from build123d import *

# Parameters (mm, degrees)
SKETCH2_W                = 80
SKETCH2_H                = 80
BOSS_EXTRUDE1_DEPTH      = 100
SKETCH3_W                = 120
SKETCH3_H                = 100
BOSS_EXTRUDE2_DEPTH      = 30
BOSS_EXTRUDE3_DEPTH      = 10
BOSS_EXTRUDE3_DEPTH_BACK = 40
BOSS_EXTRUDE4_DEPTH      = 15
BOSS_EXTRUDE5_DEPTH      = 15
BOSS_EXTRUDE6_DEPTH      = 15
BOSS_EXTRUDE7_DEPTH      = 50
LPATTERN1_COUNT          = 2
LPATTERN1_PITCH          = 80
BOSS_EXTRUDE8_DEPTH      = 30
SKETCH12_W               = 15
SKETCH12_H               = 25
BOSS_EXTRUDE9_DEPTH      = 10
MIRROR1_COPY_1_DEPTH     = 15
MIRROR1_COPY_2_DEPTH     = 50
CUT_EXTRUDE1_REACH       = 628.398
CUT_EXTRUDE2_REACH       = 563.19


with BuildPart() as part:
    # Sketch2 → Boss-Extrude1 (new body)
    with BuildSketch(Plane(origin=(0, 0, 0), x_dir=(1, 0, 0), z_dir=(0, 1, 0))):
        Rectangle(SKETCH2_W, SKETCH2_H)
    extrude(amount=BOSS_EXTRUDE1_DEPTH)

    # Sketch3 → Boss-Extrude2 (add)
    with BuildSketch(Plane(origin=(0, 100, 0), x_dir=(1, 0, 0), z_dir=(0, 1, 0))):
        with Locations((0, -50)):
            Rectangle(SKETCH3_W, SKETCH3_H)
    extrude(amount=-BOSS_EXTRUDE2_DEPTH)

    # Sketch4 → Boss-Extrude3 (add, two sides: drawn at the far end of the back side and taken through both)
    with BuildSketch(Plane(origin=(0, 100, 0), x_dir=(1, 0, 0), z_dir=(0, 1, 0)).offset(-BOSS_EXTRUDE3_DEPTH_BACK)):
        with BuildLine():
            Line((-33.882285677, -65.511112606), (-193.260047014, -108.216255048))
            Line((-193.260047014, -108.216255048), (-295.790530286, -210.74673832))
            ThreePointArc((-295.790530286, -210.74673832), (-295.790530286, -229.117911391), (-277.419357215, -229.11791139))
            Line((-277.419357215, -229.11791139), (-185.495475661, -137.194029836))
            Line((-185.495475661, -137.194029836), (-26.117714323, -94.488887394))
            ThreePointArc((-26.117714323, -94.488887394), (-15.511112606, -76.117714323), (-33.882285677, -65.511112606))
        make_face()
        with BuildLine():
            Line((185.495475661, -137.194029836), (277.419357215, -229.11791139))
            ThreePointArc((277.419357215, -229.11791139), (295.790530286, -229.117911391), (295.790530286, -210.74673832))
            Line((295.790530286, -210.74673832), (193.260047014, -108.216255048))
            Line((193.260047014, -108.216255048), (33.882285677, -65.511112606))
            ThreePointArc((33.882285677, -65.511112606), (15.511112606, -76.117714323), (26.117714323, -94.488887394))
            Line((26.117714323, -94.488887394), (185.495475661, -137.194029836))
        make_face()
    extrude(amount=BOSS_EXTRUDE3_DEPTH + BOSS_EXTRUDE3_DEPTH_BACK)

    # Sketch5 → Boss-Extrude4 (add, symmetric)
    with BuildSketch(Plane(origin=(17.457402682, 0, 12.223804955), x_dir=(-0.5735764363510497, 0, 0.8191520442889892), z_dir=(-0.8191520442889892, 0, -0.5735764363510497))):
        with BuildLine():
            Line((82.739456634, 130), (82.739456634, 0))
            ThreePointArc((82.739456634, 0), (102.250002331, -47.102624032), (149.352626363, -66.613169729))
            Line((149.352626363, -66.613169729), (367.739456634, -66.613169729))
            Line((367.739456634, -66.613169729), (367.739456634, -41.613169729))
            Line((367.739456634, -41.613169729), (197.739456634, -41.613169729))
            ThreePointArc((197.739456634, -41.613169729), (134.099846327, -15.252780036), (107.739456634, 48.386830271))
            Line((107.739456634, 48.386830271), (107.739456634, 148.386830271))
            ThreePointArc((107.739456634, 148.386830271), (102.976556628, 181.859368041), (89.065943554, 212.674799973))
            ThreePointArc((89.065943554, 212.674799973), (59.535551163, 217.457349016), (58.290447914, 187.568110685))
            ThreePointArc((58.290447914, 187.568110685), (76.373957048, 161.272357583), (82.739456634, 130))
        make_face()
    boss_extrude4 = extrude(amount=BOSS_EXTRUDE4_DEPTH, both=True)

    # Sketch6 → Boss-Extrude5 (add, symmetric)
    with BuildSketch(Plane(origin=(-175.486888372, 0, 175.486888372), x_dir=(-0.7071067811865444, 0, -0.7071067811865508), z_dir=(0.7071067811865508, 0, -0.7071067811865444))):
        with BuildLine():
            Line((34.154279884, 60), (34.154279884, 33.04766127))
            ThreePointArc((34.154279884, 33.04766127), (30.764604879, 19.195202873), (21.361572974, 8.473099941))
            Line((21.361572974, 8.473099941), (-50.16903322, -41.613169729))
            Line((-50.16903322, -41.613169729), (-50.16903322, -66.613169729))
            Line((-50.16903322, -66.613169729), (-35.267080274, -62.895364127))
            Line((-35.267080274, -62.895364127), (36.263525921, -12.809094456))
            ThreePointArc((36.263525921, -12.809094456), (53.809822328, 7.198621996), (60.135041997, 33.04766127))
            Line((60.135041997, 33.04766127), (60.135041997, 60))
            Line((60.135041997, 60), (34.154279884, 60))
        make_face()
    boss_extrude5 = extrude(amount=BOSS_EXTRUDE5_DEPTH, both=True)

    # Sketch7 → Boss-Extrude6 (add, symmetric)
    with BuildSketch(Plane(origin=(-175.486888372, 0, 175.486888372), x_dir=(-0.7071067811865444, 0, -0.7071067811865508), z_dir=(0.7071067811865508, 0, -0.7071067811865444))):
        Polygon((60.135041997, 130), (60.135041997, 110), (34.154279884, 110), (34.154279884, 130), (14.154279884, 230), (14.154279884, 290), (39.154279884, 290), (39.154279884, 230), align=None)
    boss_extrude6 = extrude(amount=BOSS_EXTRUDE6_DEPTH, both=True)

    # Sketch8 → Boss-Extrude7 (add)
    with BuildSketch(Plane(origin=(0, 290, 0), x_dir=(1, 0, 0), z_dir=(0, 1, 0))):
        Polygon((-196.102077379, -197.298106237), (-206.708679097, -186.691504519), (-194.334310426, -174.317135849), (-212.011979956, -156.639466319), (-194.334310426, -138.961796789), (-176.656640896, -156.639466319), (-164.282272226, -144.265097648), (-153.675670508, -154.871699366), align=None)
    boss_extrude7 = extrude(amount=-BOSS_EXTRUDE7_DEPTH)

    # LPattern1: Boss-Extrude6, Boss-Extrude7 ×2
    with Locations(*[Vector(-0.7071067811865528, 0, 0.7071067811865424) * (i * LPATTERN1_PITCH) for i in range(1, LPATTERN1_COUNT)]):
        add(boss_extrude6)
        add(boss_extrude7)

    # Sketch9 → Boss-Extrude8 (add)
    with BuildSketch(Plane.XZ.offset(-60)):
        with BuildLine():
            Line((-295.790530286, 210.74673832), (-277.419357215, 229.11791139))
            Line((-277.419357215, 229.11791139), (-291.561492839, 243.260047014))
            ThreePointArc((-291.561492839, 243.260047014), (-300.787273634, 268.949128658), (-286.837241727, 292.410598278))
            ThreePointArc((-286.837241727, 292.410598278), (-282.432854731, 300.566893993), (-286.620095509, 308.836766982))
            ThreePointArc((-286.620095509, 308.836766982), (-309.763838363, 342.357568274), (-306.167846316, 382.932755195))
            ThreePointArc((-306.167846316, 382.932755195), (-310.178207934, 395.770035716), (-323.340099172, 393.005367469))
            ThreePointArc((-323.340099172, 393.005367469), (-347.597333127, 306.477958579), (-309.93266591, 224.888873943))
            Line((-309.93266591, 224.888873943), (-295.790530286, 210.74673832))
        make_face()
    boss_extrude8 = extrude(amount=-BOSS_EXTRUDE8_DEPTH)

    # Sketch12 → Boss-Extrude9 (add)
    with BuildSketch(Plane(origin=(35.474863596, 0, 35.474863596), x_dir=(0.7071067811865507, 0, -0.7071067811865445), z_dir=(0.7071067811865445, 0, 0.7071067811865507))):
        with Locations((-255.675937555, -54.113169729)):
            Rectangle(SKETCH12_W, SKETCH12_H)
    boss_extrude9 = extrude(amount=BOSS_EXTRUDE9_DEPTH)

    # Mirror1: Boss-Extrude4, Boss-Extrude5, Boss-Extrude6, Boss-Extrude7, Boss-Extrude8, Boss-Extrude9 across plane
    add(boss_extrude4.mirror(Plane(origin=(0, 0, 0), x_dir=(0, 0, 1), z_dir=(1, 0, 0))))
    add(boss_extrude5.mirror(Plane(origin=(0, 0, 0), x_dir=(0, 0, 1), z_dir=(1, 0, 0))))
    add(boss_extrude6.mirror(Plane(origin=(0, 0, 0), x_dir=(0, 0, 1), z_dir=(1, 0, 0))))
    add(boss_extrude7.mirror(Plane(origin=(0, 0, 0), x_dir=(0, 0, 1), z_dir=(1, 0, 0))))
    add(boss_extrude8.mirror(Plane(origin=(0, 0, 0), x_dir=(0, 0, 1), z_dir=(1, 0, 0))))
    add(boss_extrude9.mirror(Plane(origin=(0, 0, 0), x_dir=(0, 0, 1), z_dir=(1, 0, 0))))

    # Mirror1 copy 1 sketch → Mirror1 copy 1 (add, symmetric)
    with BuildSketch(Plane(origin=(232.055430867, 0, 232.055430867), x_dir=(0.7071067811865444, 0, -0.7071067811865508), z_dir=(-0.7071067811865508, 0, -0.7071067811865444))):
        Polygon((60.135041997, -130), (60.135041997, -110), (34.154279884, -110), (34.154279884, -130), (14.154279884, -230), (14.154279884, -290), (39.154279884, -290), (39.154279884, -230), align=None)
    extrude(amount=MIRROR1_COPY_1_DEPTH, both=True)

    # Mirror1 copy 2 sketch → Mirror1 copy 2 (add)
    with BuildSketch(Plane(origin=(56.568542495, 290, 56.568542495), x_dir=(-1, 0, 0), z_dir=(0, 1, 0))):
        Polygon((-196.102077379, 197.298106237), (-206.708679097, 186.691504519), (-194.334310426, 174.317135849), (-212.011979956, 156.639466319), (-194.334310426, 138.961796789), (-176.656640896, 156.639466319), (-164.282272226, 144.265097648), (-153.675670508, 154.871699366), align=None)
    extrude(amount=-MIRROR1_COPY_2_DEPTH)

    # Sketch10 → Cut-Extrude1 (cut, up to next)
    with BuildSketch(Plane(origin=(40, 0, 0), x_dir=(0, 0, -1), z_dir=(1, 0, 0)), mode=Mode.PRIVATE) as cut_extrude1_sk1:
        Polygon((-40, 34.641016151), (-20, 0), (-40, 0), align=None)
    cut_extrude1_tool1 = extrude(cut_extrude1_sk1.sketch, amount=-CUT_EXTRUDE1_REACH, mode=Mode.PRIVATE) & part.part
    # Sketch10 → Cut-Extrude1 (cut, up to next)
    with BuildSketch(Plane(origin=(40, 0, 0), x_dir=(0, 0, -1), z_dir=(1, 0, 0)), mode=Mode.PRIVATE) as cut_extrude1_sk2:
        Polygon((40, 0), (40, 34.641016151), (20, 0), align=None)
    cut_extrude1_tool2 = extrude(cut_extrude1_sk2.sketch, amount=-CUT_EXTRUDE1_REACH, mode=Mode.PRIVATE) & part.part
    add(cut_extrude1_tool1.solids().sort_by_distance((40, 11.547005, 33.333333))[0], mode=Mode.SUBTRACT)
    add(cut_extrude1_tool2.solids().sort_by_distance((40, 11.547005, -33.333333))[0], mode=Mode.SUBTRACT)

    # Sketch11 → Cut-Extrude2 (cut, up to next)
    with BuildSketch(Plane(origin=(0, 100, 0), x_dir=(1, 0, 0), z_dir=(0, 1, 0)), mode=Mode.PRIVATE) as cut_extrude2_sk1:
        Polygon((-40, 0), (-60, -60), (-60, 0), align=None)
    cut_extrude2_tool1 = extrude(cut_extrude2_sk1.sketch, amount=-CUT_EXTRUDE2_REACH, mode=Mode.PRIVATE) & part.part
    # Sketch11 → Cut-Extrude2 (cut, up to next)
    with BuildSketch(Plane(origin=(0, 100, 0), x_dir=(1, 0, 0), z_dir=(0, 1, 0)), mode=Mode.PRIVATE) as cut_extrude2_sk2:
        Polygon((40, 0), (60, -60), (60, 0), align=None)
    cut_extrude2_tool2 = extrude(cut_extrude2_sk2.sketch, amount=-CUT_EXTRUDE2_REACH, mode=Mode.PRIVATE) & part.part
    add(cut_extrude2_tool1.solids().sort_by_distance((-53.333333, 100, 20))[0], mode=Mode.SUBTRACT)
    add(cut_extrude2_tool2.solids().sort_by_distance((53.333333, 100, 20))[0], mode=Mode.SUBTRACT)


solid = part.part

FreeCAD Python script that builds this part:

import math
import FreeCAD as App
import Part
import Sketcher
Q = App.Units.Quantity


def add_polygon(sketch, points):
    """Adds a closed chain of lines whose ends are joined by coincident constraints."""
    first, n = sketch.GeometryCount, len(points)
    for a, b in zip(points, points[1:] + points[:1]):
        sketch.addGeometry(Part.LineSegment(App.Vector(*a, 0), App.Vector(*b, 0)), False)
    for i in range(n):
        sketch.addConstraint(Sketcher.Constraint("Coincident", first + i, 2, first + (i + 1) % n, 1))

doc = App.newDocument("Part")
body = doc.addObject("PartDesign::Body", "Body")

# Sketch on XZ plane
sketch1 = doc.addObject("Sketcher::SketchObject", "Sketch")
body.addObject(sketch1)
sketch1.AttachmentSupport = (doc.XZ_Plane, [""])
sketch1.MapMode = "FlatFace"
add_polygon(sketch1, [(-40, -40), (-40, 40), (40, 40), (40, -40)])  # lines 0-3
sketch1.addConstraint([
    Sketcher.Constraint("Vertical", 0),
    Sketcher.Constraint("Horizontal", 1),
    Sketcher.Constraint("Vertical", 2),
    Sketcher.Constraint("Horizontal", 3),
    Sketcher.Constraint("Symmetric", 0, 2, 2, 2, -1, 1),
    Sketcher.Constraint("Equal", 3, 0),
    Sketcher.Constraint("DistanceX", 1, 1, 1, 2, 80.0),
])
pad1 = doc.addObject("PartDesign::Pad", "Pad")
body.addObject(pad1)
pad1.Profile = sketch1
pad1.Length = 100
pad1.Reversed = True

# Sketch on XZ plane
sketch2 = doc.addObject("Sketcher::SketchObject", "Sketch001")
body.addObject(sketch2)
sketch2.AttachmentSupport = (doc.XZ_Plane, [""])
sketch2.MapMode = "FlatFace"
sketch2.AttachmentOffset = App.Placement(App.Vector(0, 0, -100), App.Rotation())
add_polygon(sketch2, [(-60, 0), (-60, 100), (60, 100), (60, 0)])  # lines 0-3
sketch2.addConstraint([
    Sketcher.Constraint("Vertical", 0),
    Sketcher.Constraint("Horizontal", 1),
    Sketcher.Constraint("Vertical", 2),
    Sketcher.Constraint("Horizontal", 3),
    Sketcher.Constraint("Symmetric", 2, 2, 3, 2, -1, 1),
    Sketcher.Constraint("DistanceX", 1, 1, 1, 2, 120.0),
    Sketcher.Constraint("DistanceY", 0, 1, 0, 2, 100.0),
])
pad2 = doc.addObject("PartDesign::Pad", "Pad001")
body.addObject(pad2)
pad2.Profile = sketch2
pad2.Length = 30

# Sketch on XZ plane
sketch3 = doc.addObject("Sketcher::SketchObject", "Sketch002")
body.addObject(sketch3)
sketch3.AttachmentSupport = (doc.XZ_Plane, [""])
sketch3.MapMode = "FlatFace"
sketch3.AttachmentOffset = App.Placement(App.Vector(0, 0, -100), App.Rotation())
sketch3.addGeometry([
    Part.LineSegment(App.Vector(-34, 66, 0), App.Vector(-193, 108, 0)),  # 0
    Part.LineSegment(App.Vector(-193, 108, 0), App.Vector(-296, 211, 0)),  # 1
    Part.ArcOfCircle(Part.Circle(App.Vector(-287, 220, 0), App.Vector(0, 0, 1), 13), math.radians(45), math.radians(225)),  # 2
    Part.LineSegment(App.Vector(-277, 229, 0), App.Vector(-185, 137, 0)),  # 3
    Part.LineSegment(App.Vector(-185, 137, 0), App.Vector(-26, 94, 0)),  # 4
    Part.ArcOfCircle(Part.Circle(App.Vector(-30, 80, 0), App.Vector(0, 0, 1), 15), math.radians(-105), math.radians(75)),  # 5
    Part.LineSegment(App.Vector(185, 137, 0), App.Vector(277, 229, 0)),  # 6
    Part.ArcOfCircle(Part.Circle(App.Vector(287, 220, 0), App.Vector(0, 0, 1), 13), math.radians(-45), math.radians(135)),  # 7
    Part.LineSegment(App.Vector(296, 211, 0), App.Vector(193, 108, 0)),  # 8
    Part.LineSegment(App.Vector(193, 108, 0), App.Vector(34, 66, 0)),  # 9
    Part.ArcOfCircle(Part.Circle(App.Vector(30, 80, 0), App.Vector(0, 0, 1), 15), math.radians(105), math.radians(285)),  # 10
    Part.LineSegment(App.Vector(26, 94, 0), App.Vector(185, 137, 0)),  # 11
], False)
sketch3.addConstraint([
    Sketcher.Constraint("Coincident", 0, 2, 1, 1),
    Sketcher.Constraint("Tangent", 1, 2, 2, 2),
    Sketcher.Constraint("Tangent", 2, 1, 3, 1),
    Sketcher.Constraint("Coincident", 3, 2, 4, 1),
    Sketcher.Constraint("Tangent", 4, 2, 5, 2),
    Sketcher.Constraint("Tangent", 5, 1, 0, 1),
    Sketcher.Constraint("Tangent", 6, 2, 7, 2),
    Sketcher.Constraint("Tangent", 7, 1, 8, 1),
    Sketcher.Constraint("Coincident", 8, 2, 9, 1),
    Sketcher.Constraint("Tangent", 9, 2, 10, 2),
    Sketcher.Constraint("Tangent", 10, 1, 11, 1),
    Sketcher.Constraint("Coincident", 11, 2, 6, 1),
    Sketcher.Constraint("Equal", 2, 7),
    Sketcher.Constraint("Equal", 5, 10),
    Sketcher.Constraint("Symmetric", 2, 3, 7, 3, -2),
    Sketcher.Constraint("Symmetric", 5, 3, 10, 3, -2),
    Sketcher.Constraint("Symmetric", 0, 2, 8, 2, -2),
    Sketcher.Constraint("Symmetric", 3, 2, 11, 2, -2),
    Sketcher.Constraint("Parallel", 1, 3),
    Sketcher.Constraint("Parallel", 0, 4),
    Sketcher.Constraint("Perpendicular", 3, 6),
    Sketcher.Constraint("Equal", 0, 4),
    Sketcher.Constraint("Radius", 5, 15.0),
    Sketcher.Constraint("Angle", 0, Q("165 deg")),
    Sketcher.Constraint("Distance", 0, 165.0),
    Sketcher.Constraint("Distance", 1, 145.0),
    Sketcher.Constraint("DistanceX", 5, 3, -1, 1, 30.0),
    Sketcher.Constraint("DistanceY", -1, 1, 5, 3, 80.0),
])
pad3 = doc.addObject("PartDesign::Pad", "Pad002")
body.addObject(pad3)
pad3.Profile = sketch3
pad3.Type = "TwoLengths"
pad3.Length = 10
pad3.Length2 = 40
pad3.Reversed = True

# Sketch on an angled plane
sketch4 = doc.addObject("Sketcher::SketchObject", "Sketch003")
body.addObject(sketch4)
sketch4.Placement = App.Placement(App.Vector(17.457403, 0, 12.223805), App.Rotation(App.Vector(-0.573576436, 0, 0.819152044), App.Vector(0, 0.999999999, 0), App.Vector(-0.819152044, 0, -0.573576436), "ZXY"))
sketch4.addGeometry([
    Part.LineSegment(App.Vector(83, 130, 0), App.Vector(83, 0, 0)),  # 0
    Part.ArcOfCircle(Part.Circle(App.Vector(149, 0, 0), App.Vector(0, 0, 1), 67), math.radians(180), math.radians(270)),  # 1
    Part.LineSegment(App.Vector(149, -67, 0), App.Vector(368, -67, 0)),  # 2
    Part.LineSegment(App.Vector(368, -67, 0), App.Vector(368, -42, 0)),  # 3
    Part.LineSegment(App.Vector(368, -42, 0), App.Vector(198, -42, 0)),  # 4
    Part.ArcOfCircle(Part.Circle(App.Vector(198, 48, 0), App.Vector(0, 0, 1), 90), math.radians(180), math.radians(270)),  # 5
    Part.LineSegment(App.Vector(108, 48, 0), App.Vector(108, 148, 0)),  # 6
    Part.ArcOfCircle(Part.Circle(App.Vector(-12, 148, 0), App.Vector(0, 0, 1), 120), math.radians(0), math.radians(32)),  # 7
    Part.ArcOfCircle(Part.Circle(App.Vector(72, 202, 0), App.Vector(0, 0, 1), 20), math.radians(32), math.radians(226)),  # 8
    Part.ArcOfCircle(Part.Circle(App.Vector(3, 130, 0), App.Vector(0, 0, 1), 80), math.radians(0), math.radians(46)),  # 9
], False)
sketch4.addConstraint([
    Sketcher.Constraint("Tangent", 0, 2, 1, 1),
    Sketcher.Constraint("Tangent", 1, 2, 2, 1),
    Sketcher.Constraint("Coincident", 2, 2, 3, 1),
    Sketcher.Constraint("Coincident", 3, 2, 4, 1),
    Sketcher.Constraint("Tangent", 4, 2, 5, 2),
    Sketcher.Constraint("Tangent", 5, 1, 6, 1),
    Sketcher.Constraint("Tangent", 6, 2, 7, 1),
    Sketcher.Constraint("Tangent", 7, 2, 8, 1),
    Sketcher.Constraint("Tangent", 8, 2, 9, 2),
    Sketcher.Constraint("Tangent", 9, 1, 0, 1),
    Sketcher.Constraint("Vertical", 0),
    Sketcher.Constraint("Horizontal", 2),
    Sketcher.Constraint("Vertical", 3),
    Sketcher.Constraint("Horizontal", 4),
    Sketcher.Constraint("Vertical", 6),
    Sketcher.Constraint("PointOnObject", 1, 3, -1),
    Sketcher.Constraint("Radius", 5, 90.0),
    Sketcher.Constraint("Radius", 7, 120.0),
    Sketcher.Constraint("Radius", 8, 20.0),
    Sketcher.Constraint("Radius", 9, 80.0),
    Sketcher.Constraint("DistanceX", 4, 2, 4, 1, 170.0),
    Sketcher.Constraint("DistanceY", 0, 2, 0, 1, 130.0),
    Sketcher.Constraint("DistanceY", 3, 1, 3, 2, 25.0),
    Sketcher.Constraint("DistanceY", 6, 1, 6, 2, 100.0),
    Sketcher.Constraint("DistanceX", 7, 3, 9, 3, 15.0),
    Sketcher.Constraint("Radius", 1, 66.61317),
    Sketcher.Constraint("DistanceX", -1, 1, 1, 3, 149.352626),
])
pad4 = doc.addObject("PartDesign::Pad", "Pad003")
body.addObject(pad4)
pad4.Profile = sketch4
pad4.Length = 30
pad4.Midplane = True

# Sketch on an angled plane
sketch5 = doc.addObject("Sketcher::SketchObject", "Sketch004")
body.addObject(sketch5)
sketch5.Placement = App.Placement(App.Vector(-175.486888, 0, 175.486888), App.Rotation(App.Vector(-0.707106781, 0, -0.707106781), App.Vector(0, 0.999999999, 0), App.Vector(0.707106781, 0, -0.707106781), "ZXY"))
sketch5.addGeometry([
    Part.LineSegment(App.Vector(34, 60, 0), App.Vector(34, 33, 0)),  # 0
    Part.ArcOfCircle(Part.Circle(App.Vector(4, 33, 0), App.Vector(0, 0, 1), 30), math.radians(-55), math.radians(0)),  # 1
    Part.LineSegment(App.Vector(21, 8, 0), App.Vector(-50, -42, 0)),  # 2
    Part.LineSegment(App.Vector(-50, -42, 0), App.Vector(-50, -67, 0)),  # 3
    Part.LineSegment(App.Vector(-50, -67, 0), App.Vector(-35, -63, 0)),  # 4
    Part.LineSegment(App.Vector(-35, -63, 0), App.Vector(36, -13, 0)),  # 5
    Part.ArcOfCircle(Part.Circle(App.Vector(4, 33, 0), App.Vector(0, 0, 1), 56), math.radians(-55), math.radians(0)),  # 6
    Part.LineSegment(App.Vector(60, 33, 0), App.Vector(60, 60, 0)),  # 7
    Part.LineSegment(App.Vector(60, 60, 0), App.Vector(34, 60, 0)),  # 8
], False)
sketch5.addConstraint([
    Sketcher.Constraint("Tangent", 0, 2, 1, 2),
    Sketcher.Constraint("Tangent", 1, 1, 2, 1),
    Sketcher.Constraint("Coincident", 2, 2, 3, 1),
    Sketcher.Constraint("Coincident", 3, 2, 4, 1),
    Sketcher.Constraint("Coincident", 4, 2, 5, 1),
    Sketcher.Constraint("Tangent", 5, 2, 6, 1),
    Sketcher.Constraint("Tangent", 6, 2, 7, 1),
    Sketcher.Constraint("Coincident", 7, 2, 8, 1),
    Sketcher.Constraint("Coincident", 8, 2, 0, 1),
    Sketcher.Constraint("Vertical", 0),
    Sketcher.Constraint("Vertical", 3),
    Sketcher.Constraint("Vertical", 7),
    Sketcher.Constraint("Horizontal", 8),
    Sketcher.Constraint("Coincident", 6, 3, 1, 3),
    Sketcher.Constraint("Parallel", 2, 5),
    Sketcher.Constraint("Equal", 2, 5),
    Sketcher.Constraint("Radius", 1, 30.0),
    Sketcher.Constraint("DistanceY", 3, 2, 3, 1, 25.0),
    Sketcher.Constraint("Angle", 2, Q("-145 deg")),
    Sketcher.Constraint("DistanceY", -1, 1, 7, 2, 60.0),
    Sketcher.Constraint("Radius", 6, 55.980762),
    Sketcher.Constraint("DistanceY", 0, 2, 0, 1, 26.952339),
    Sketcher.Constraint("DistanceX", -1, 1, 1, 3, 4.15428),
    Sketcher.Constraint("DistanceY", 2, 2, -1, 1, 41.61317),
])
pad5 = doc.addObject("PartDesign::Pad", "Pad004")
body.addObject(pad5)
pad5.Profile = sketch5
pad5.Length = 30
pad5.Midplane = True

# Sketch on an angled plane
sketch6 = doc.addObject("Sketcher::SketchObject", "Sketch005")
body.addObject(sketch6)
sketch6.Placement = App.Placement(App.Vector(-175.486888, 0, 175.486888), App.Rotation(App.Vector(-0.707106781, 0, -0.707106781), App.Vector(0, 0.999999999, 0), App.Vector(0.707106781, 0, -0.707106781), "ZXY"))
add_polygon(sketch6, [(60, 110), (60, 130), (39, 230), (39, 290), (14, 290), (14, 230), (34, 130), (34, 110)])  # lines 0-7
sketch6.addConstraint([
    Sketcher.Constraint("Vertical", 0),
    Sketcher.Constraint("Vertical", 2),
    Sketcher.Constraint("Horizontal", 3),
    Sketcher.Constraint("Vertical", 4),
    Sketcher.Constraint("Vertical", 6),
    Sketcher.Constraint("Horizontal", 7),
    Sketcher.Constraint("Horizontal", 1, 2, 4, 2),
    Sketcher.Constraint("Horizontal", 0, 2, 5, 2),
    Sketcher.Constraint("DistanceX", 3, 2, 3, 1, 25.0),
    Sketcher.Constraint("DistanceY", 0, 1, 0, 2, 20.0),
    Sketcher.Constraint("DistanceY", 2, 1, 2, 2, 60.0),
    Sketcher.Constraint("DistanceY", -1, 1, 0, 2, 130.0),
    Sketcher.Constraint("DistanceY", -1, 1, 1, 2, 230.0),
    Sketcher.Constraint("DistanceX", 5, 2, 1, 2, 5.0),
    Sketcher.Constraint("Distance", 1, 102.177259),
    Sketcher.Constraint("DistanceX", -1, 1, 0, 2, 60.135042),
])
pad6 = doc.addObject("PartDesign::Pad", "Pad005")
body.addObject(pad6)
pad6.Profile = sketch6
pad6.Length = 30
pad6.Midplane = True

# Sketch on XZ plane
sketch7 = doc.addObject("Sketcher::SketchObject", "Sketch006")
body.addObject(sketch7)
sketch7.AttachmentSupport = (doc.XZ_Plane, [""])
sketch7.MapMode = "FlatFace"
sketch7.AttachmentOffset = App.Placement(App.Vector(0, 0, -290), App.Rotation())
add_polygon(sketch7, [(-207, 187), (-196, 197), (-154, 155), (-164, 144), (-177, 157), (-194, 139), (-212, 157), (-194, 174)])  # lines 0-7
sketch7.addConstraint([
    Sketcher.Constraint("Perpendicular", 0, 1),
    Sketcher.Constraint("Perpendicular", 1, 2),
    Sketcher.Constraint("Perpendicular", 2, 3),
    Sketcher.Constraint("Perpendicular", 3, 4),
    Sketcher.Constraint("Perpendicular", 4, 5),
    Sketcher.Constraint("Perpendicular", 5, 6),
    Sketcher.Constraint("Perpendicular", 6, 7),
    Sketcher.Constraint("Horizontal", 3, 2, 5, 2),
    Sketcher.Constraint("Vertical", 4, 2, 6, 2),
    Sketcher.Constraint("Equal", 0, 2),
    Sketcher.Constraint("Equal", 3, 7),
    Sketcher.Constraint("Distance", 0, 15.0),
    Sketcher.Constraint("Distance", 1, 60.0),
    Sketcher.Constraint("Distance", 4, 25.0),
    Sketcher.Constraint("DistanceY", -1, 1, 1, 2, 154.871699),
    Sketcher.Constraint("DistanceX", 1, 2, -1, 1, 153.675671),
])
pad7 = doc.addObject("PartDesign::Pad", "Pad006")
body.addObject(pad7)
pad7.Profile = sketch7
pad7.Length = 50
doc.recompute()

datumline = doc.addObject("PartDesign::Line", "DatumLine")
body.addObject(datumline)
datumline.Placement = App.Placement(App.Vector(0, 0, 0), App.Rotation(App.Vector(0, 0, 1), App.Vector(-0.707106781, 0, 0.707106781)))
linearpattern = doc.addObject("PartDesign::LinearPattern", "LinearPattern")
body.addObject(linearpattern)
linearpattern.Originals = [pad6, pad7]
linearpattern.Direction = (datumline, [""])
linearpattern.Mode = "offset"
linearpattern.Offset = 80
linearpattern.Occurrences = 2
body.Tip = linearpattern

# Sketch on XZ plane
sketch8 = doc.addObject("Sketcher::SketchObject", "Sketch007")
body.addObject(sketch8)
sketch8.AttachmentSupport = (doc.XZ_Plane, [""])
sketch8.MapMode = "FlatFace"
sketch8.AttachmentOffset = App.Placement(App.Vector(0, 0, -60), App.Rotation())
sketch8.addGeometry([
    Part.LineSegment(App.Vector(-296, 211, 0), App.Vector(-277, 229, 0)),  # 0
    Part.LineSegment(App.Vector(-277, 229, 0), App.Vector(-292, 243, 0)),  # 1
    Part.ArcOfCircle(Part.Circle(App.Vector(-269, 266, 0), App.Vector(0, 0, 1), 32), math.radians(124), math.radians(225)),  # 2
    Part.ArcOfCircle(Part.Circle(App.Vector(-292, 301, 0), App.Vector(0, 0, 1), 10), math.radians(-56), math.radians(54)),  # 3
    Part.ArcOfCircle(Part.Circle(App.Vector(-252, 358, 0), App.Vector(0, 0, 1), 60), math.radians(155), math.radians(234)),  # 4
    Part.ArcOfCircle(Part.Circle(App.Vector(-315, 387, 0), App.Vector(0, 0, 1), 10), math.radians(-25), math.radians(144)),  # 5
    Part.ArcOfCircle(Part.Circle(App.Vector(-218, 317, 0), App.Vector(0, 0, 1), 130), math.radians(144), math.radians(225)),  # 6
    Part.LineSegment(App.Vector(-310, 225, 0), App.Vector(-296, 211, 0)),  # 7
], False)
sketch8.addConstraint([
    Sketcher.Constraint("Coincident", 0, 2, 1, 1),
    Sketcher.Constraint("Tangent", 1, 2, 2, 2),
    Sketcher.Constraint("Tangent", 2, 1, 3, 1),
    Sketcher.Constraint("Tangent", 3, 2, 4, 2),
    Sketcher.Constraint("Tangent", 4, 1, 5, 1),
    Sketcher.Constraint("Tangent", 5, 2, 6, 1),
    Sketcher.Constraint("Tangent", 6, 2, 7, 1),
    Sketcher.Constraint("Coincident", 7, 2, 0, 1),
    Sketcher.Constraint("Equal", 3, 5),
    Sketcher.Constraint("Perpendicular", 0, 1),
    Sketcher.Constraint("Parallel", 1, 7),
    Sketcher.Constraint("Equal", 1, 7),
    Sketcher.Constraint("Radius", 2, 32.0),
    Sketcher.Constraint("Radius", 3, 10.0),
    Sketcher.Constraint("Radius", 4, 60.0),
    Sketcher.Constraint("Radius", 6, 130.0),
    Sketcher.Constraint("Angle", 0, Q("45 deg")),
    Sketcher.Constraint("Distance", 1, 20.0),
    Sketcher.Constraint("DistanceY", -1, 1, 2, 1, 292.410598),
    Sketcher.Constraint("DistanceX", 5, 2, -1, 1, 323.340099),
    Sketcher.Constraint("DistanceX", 3, 3, 4, 3, 40.683199),
    Sketcher.Constraint("DistanceY", 3, 2, 5, 2, 84.1686),
    Sketcher.Constraint("DistanceX", 3, 3, -1, 1, 292.431981),
])
pad8 = doc.addObject("PartDesign::Pad", "Pad007")
body.addObject(pad8)
pad8.Profile = sketch8
pad8.Length = 30
pad8.Reversed = True

# Sketch on an angled plane
sketch9 = doc.addObject("Sketcher::SketchObject", "Sketch008")
body.addObject(sketch9)
sketch9.Placement = App.Placement(App.Vector(35.474864, 0, 35.474864), App.Rotation(App.Vector(0.707106781, 0, -0.707106781), App.Vector(0, 0.999999999, 0), App.Vector(0.707106781, 0, 0.707106781), "ZXY"))
add_polygon(sketch9, [(-263, -42), (-263, -67), (-248, -67), (-248, -42)])  # lines 0-3
sketch9.addConstraint([
    Sketcher.Constraint("Vertical", 0),
    Sketcher.Constraint("Horizontal", 1),
    Sketcher.Constraint("Vertical", 2),
    Sketcher.Constraint("Horizontal", 3),
    Sketcher.Constraint("DistanceX", 1, 1, 1, 2, 15.0),
    Sketcher.Constraint("DistanceY", 0, 2, 0, 1, 25.0),
    Sketcher.Constraint("DistanceY", 0, 2, -1, 1, 66.61317),
    Sketcher.Constraint("DistanceX", 0, 2, -1, 1, 263.175937),
])
pad9 = doc.addObject("PartDesign::Pad", "Pad008")
body.addObject(pad9)
pad9.Profile = sketch9
pad9.Length = 10
doc.recompute()

mirrored = doc.addObject("PartDesign::Mirrored", "Mirrored")
body.addObject(mirrored)
mirrored.Originals = [pad4, pad5, pad6, pad7, pad8, pad9]
mirrored.MirrorPlane = (doc.YZ_Plane, [""])
body.Tip = mirrored

# Sketch on an angled plane
sketch10 = doc.addObject("Sketcher::SketchObject", "Sketch009")
body.addObject(sketch10)
sketch10.Placement = App.Placement(App.Vector(232.055431, 0, 232.055431), App.Rotation(App.Vector(0.707106781, 0, -0.707106781), App.Vector(0, -0.999999999, 0), App.Vector(-0.707106781, 0, -0.707106781), "ZXY"))
add_polygon(sketch10, [(60, -130), (60, -110), (34, -110), (34, -130), (14, -230), (14, -290), (39, -290), (39, -230)])  # lines 0-7
sketch10.addConstraint([
    Sketcher.Constraint("Vertical", 0),
    Sketcher.Constraint("Horizontal", 1),
    Sketcher.Constraint("Vertical", 2),
    Sketcher.Constraint("Vertical", 4),
    Sketcher.Constraint("Horizontal", 5),
    Sketcher.Constraint("Vertical", 6),
    Sketcher.Constraint("Horizontal", 3, 2, 6, 2),
    Sketcher.Constraint("Horizontal", 2, 2, 7, 2),
    Sketcher.Constraint("DistanceX", 5, 1, 5, 2, 25.0),
    Sketcher.Constraint("DistanceY", 0, 1, 0, 2, 20.0),
    Sketcher.Constraint("DistanceY", 4, 2, 4, 1, 60.0),
    Sketcher.Constraint("DistanceY", 0, 2, -1, 1, 110.0),
    Sketcher.Constraint("DistanceY", 3, 2, -1, 1, 230.0),
    Sketcher.Constraint("DistanceX", 3, 2, 2, 2, 20.0),
    Sketcher.Constraint("Distance", 7, 102.177259),
    Sketcher.Constraint("DistanceX", -1, 1, 0, 2, 60.135042),
])
pad10 = doc.addObject("PartDesign::Pad", "Pad009")
body.addObject(pad10)
pad10.Profile = sketch10
pad10.Length = 30
pad10.Midplane = True

# Sketch on XZ plane
sketch11 = doc.addObject("Sketcher::SketchObject", "Sketch010")
body.addObject(sketch11)
sketch11.AttachmentSupport = (doc.XZ_Plane, [""])
sketch11.MapMode = "FlatFace"
sketch11.AttachmentOffset = App.Placement(App.Vector(0, 0, -290), App.Rotation())
add_polygon(sketch11, [(253, 254), (263, 243), (251, 231), (269, 213), (251, 196), (233, 213), (221, 201), (210, 211)])  # lines 0-7
sketch11.addConstraint([
    Sketcher.Constraint("Perpendicular", 0, 1),
    Sketcher.Constraint("Perpendicular", 1, 2),
    Sketcher.Constraint("Perpendicular", 2, 3),
    Sketcher.Constraint("Perpendicular", 3, 4),
    Sketcher.Constraint("Perpendicular", 4, 5),
    Sketcher.Constraint("Perpendicular", 5, 6),
    Sketcher.Constraint("Perpendicular", 6, 7),
    Sketcher.Constraint("Horizontal", 2, 2, 4, 2),
    Sketcher.Constraint("Vertical", 1, 2, 3, 2),
    Sketcher.Constraint("Equal", 2, 3),
    Sketcher.Constraint("Equal", 1, 5),
    Sketcher.Constraint("Distance", 0, 15.0),
    Sketcher.Constraint("Distance", 2, 25.0),
    Sketcher.Constraint("Distance", 7, 60.0),
    Sketcher.Constraint("DistanceX", -1, 1, 0, 2, 263.277222),
    Sketcher.Constraint("DistanceY", -1, 1, 1, 2, 230.885678),
])
pad11 = doc.addObject("PartDesign::Pad", "Pad010")
body.addObject(pad11)
pad11.Profile = sketch11
pad11.Length = 50

# Sketch on YZ plane
sketch12 = doc.addObject("Sketcher::SketchObject", "Sketch011")
body.addObject(sketch12)
sketch12.AttachmentSupport = (doc.YZ_Plane, [""])
sketch12.MapMode = "FlatFace"
sketch12.AttachmentOffset = App.Placement(App.Vector(0, 0, 40), App.Rotation())
add_polygon(sketch12, [(0, 20), (35, 40), (0, 40)])  # lines 0-2
sketch12.addConstraint([
    Sketcher.Constraint("Horizontal", 1),
    Sketcher.Constraint("Vertical", 2),
    Sketcher.Constraint("PointOnObject", 1, 2, -2),
    Sketcher.Constraint("DistanceY", 2, 2, 2, 1, 20.0),
    Sketcher.Constraint("Angle", 0, Q("30 deg")),
    Sketcher.Constraint("DistanceY", -1, 1, 0, 2, 40.0),
])
pocket1 = doc.addObject("PartDesign::Pocket", "Pocket")
body.addObject(pocket1)
pocket1.Profile = sketch12
pocket1.Type = "UpToFirst"

# Sketch on YZ plane
sketch13 = doc.addObject("Sketcher::SketchObject", "Sketch012")
body.addObject(sketch13)
sketch13.AttachmentSupport = (doc.YZ_Plane, [""])
sketch13.MapMode = "FlatFace"
sketch13.AttachmentOffset = App.Placement(App.Vector(0, 0, 40), App.Rotation())
add_polygon(sketch13, [(0, -40), (35, -40), (0, -20)])  # lines 0-2
sketch13.addConstraint([
    Sketcher.Constraint("Horizontal", 0),
    Sketcher.Constraint("Vertical", 2),
    Sketcher.Constraint("PointOnObject", 1, 2, -2),
    Sketcher.Constraint("DistanceY", 2, 2, 2, 1, 20.0),
    Sketcher.Constraint("Angle", 1, Q("150 deg")),
    Sketcher.Constraint("DistanceY", 0, 2, -1, 1, 40.0),
])
pocket2 = doc.addObject("PartDesign::Pocket", "Pocket001")
body.addObject(pocket2)
pocket2.Profile = sketch13
pocket2.Type = "UpToFirst"

# Sketch on XZ plane
sketch14 = doc.addObject("Sketcher::SketchObject", "Sketch013")
body.addObject(sketch14)
sketch14.AttachmentSupport = (doc.XZ_Plane, [""])
sketch14.MapMode = "FlatFace"
sketch14.AttachmentOffset = App.Placement(App.Vector(0, 0, -100), App.Rotation())
add_polygon(sketch14, [(-60, 60), (-40, 0), (-60, 0)])  # lines 0-2
sketch14.addConstraint([
    Sketcher.Constraint("Horizontal", 1),
    Sketcher.Constraint("Vertical", 2),
    Sketcher.Constraint("PointOnObject", 0, 2, -1),
    Sketcher.Constraint("DistanceX", 1, 2, 1, 1, 20.0),
    Sketcher.Constraint("DistanceY", 2, 1, 2, 2, 60.0),
    Sketcher.Constraint("DistanceX", 0, 2, -1, 1, 40.0),
])
pocket3 = doc.addObject("PartDesign::Pocket", "Pocket002")
body.addObject(pocket3)
pocket3.Profile = sketch14
pocket3.Type = "UpToFirst"
pocket3.Reversed = True

# Sketch on XZ plane
sketch15 = doc.addObject("Sketcher::SketchObject", "Sketch014")
body.addObject(sketch15)
sketch15.AttachmentSupport = (doc.XZ_Plane, [""])
sketch15.MapMode = "FlatFace"
sketch15.AttachmentOffset = App.Placement(App.Vector(0, 0, -100), App.Rotation())
add_polygon(sketch15, [(40, 0), (60, 60), (60, 0)])  # lines 0-2
sketch15.addConstraint([
    Sketcher.Constraint("Vertical", 1),
    Sketcher.Constraint("Horizontal", 2),
    Sketcher.Constraint("PointOnObject", 1, 2, -1),
    Sketcher.Constraint("DistanceX", 2, 2, 2, 1, 20.0),
    Sketcher.Constraint("DistanceY", 1, 2, 1, 1, 60.0),
    Sketcher.Constraint("DistanceX", -1, 1, 0, 2, 60.0),
])
pocket4 = doc.addObject("PartDesign::Pocket", "Pocket003")
body.addObject(pocket4)
pocket4.Profile = sketch15
pocket4.Type = "UpToFirst"
pocket4.Reversed = True

doc.recompute()
